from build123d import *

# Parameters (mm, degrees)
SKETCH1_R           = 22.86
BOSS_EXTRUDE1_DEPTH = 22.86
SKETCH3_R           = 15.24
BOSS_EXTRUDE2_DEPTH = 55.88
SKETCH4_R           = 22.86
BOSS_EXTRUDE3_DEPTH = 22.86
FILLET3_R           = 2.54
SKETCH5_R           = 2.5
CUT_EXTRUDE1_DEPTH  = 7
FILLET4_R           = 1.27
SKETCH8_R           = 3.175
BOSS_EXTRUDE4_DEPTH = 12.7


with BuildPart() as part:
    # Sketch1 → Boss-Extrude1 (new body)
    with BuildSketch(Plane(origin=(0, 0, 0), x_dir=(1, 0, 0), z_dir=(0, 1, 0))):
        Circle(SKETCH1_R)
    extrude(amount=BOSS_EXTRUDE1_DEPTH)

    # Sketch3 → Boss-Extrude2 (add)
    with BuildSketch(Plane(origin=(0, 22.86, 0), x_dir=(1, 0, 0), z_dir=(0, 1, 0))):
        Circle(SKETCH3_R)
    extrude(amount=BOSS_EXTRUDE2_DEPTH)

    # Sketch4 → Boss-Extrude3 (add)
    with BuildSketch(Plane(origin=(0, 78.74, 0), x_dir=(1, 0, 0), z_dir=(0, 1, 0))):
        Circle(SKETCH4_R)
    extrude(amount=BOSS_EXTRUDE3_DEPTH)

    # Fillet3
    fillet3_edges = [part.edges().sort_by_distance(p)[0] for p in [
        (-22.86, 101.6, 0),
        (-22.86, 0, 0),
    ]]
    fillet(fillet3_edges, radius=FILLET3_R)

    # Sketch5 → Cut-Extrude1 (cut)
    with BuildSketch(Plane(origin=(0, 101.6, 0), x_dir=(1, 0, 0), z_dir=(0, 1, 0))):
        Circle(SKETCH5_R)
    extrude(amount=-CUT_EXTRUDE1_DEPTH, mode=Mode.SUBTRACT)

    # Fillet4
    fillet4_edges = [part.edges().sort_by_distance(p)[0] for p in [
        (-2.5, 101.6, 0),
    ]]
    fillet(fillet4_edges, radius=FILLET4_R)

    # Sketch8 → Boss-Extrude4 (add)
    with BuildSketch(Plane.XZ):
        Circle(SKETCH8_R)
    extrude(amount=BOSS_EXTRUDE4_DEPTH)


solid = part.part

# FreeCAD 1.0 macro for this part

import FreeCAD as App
import Part
import Sketcher
from FreeCAD import Vector
Q = App.Units.Quantity


def edges_at(feature, points):
    """Names of the edges that pass closest to the given points."""
    edges = feature.Shape.Edges
    near = lambda p: min(range(len(edges)), key=lambda i: edges[i].distToShape(Part.Vertex(*p))[0])
    return sorted({f"Edge{near(p) + 1}" for p in points})

doc = App.newDocument("Part")
params = doc.addObject("Spreadsheet::Sheet", "Params")
for row, (alias, value) in enumerate([
    ("sketch1_diameter", "1.8 in"),
    ("pad1_length", "0.9 in"),
    ("sketch2_diameter", "1.2 in"),
    ("pad2_length", "2.2 in"),
    ("sketch3_diameter", "1.8 in"),
    ("pad3_length", "0.9 in"),
    ("fillet_radius", "0.1 in"),
    ("pocket1_length", "7 mm"),
    ("fillet2_radius", "0.05 in"),
    ("sketch5_diameter", "0.25 in"),
    ("pad4_length", "0.5 in"),
], start=1):
    params.set(f"A{row}", alias)
    params.set(f"B{row}", "=" + value)
    params.setAlias(f"B{row}", alias)

body = doc.addObject("PartDesign::Body", "Body")

# Sketch on XZ plane
sketch1 = doc.addObject("Sketcher::SketchObject", "Sketch")
body.addObject(sketch1)
sketch1.AttachmentSupport = (doc.XZ_Plane, [""])
sketch1.MapMode = "FlatFace"
sketch1.addGeometry(Part.Circle(Vector(0, 0, 0), Vector(0, 0, 1), 22.86), False)
sketch1.addConstraint(Sketcher.Constraint("Coincident", 0, 3, -1, 1))
sketch1.addConstraint(Sketcher.Constraint("Diameter", 0, Q("1.8 in")))
sketch1.setExpression("Constraints[1]", "Params.sketch1_diameter")
pad1 = doc.addObject("PartDesign::Pad", "Pad")
body.addObject(pad1)
pad1.Profile = sketch1
pad1.setExpression("Length", "Params.pad1_length")
pad1.Reversed = True

# Sketch on XZ plane
sketch2 = doc.addObject("Sketcher::SketchObject", "Sketch001")
body.addObject(sketch2)
sketch2.AttachmentSupport = (doc.XZ_Plane, [""])
sketch2.MapMode = "FlatFace"
sketch2.AttachmentOffset = App.Placement(Vector(0, 0, -0.9 * 25.4), App.Rotation())
sketch2.addGeometry(Part.Circle(Vector(0, 0, 0), Vector(0, 0, 1), 15.24), False)
sketch2.addConstraint(Sketcher.Constraint("Coincident", 0, 3, -1, 1))
sketch2.addConstraint(Sketcher.Constraint("Diameter", 0, Q("1.2 in")))
sketch2.setExpression("Constraints[1]", "Params.sketch2_diameter")
pad2 = doc.addObject("PartDesign::Pad", "Pad001")
body.addObject(pad2)
pad2.Profile = sketch2
pad2.setExpression("Length", "Params.pad2_length")
pad2.Reversed = True

# Sketch on XZ plane
sketch3 = doc.addObject("Sketcher::SketchObject", "Sketch002")
body.addObject(sketch3)
sketch3.AttachmentSupport = (doc.XZ_Plane, [""])
sketch3.MapMode = "FlatFace"
sketch3.AttachmentOffset = App.Placement(Vector(0, 0, -3.1 * 25.4), App.Rotation())
sketch3.addGeometry(Part.Circle(Vector(0, 0, 0), Vector(0, 0, 1), 22.86), False)
sketch3.addConstraint(Sketcher.Constraint("Coincident", 0, 3, -1, 1))
sketch3.addConstraint(Sketcher.Constraint("Diameter", 0, Q("1.8 in")))
sketch3.setExpression("Constraints[1]", "Params.sketch3_diameter")
pad3 = doc.addObject("PartDesign::Pad", "Pad002")
body.addObject(pad3)
pad3.Profile = sketch3
pad3.setExpression("Length", "Params.pad3_length")
pad3.Reversed = True
doc.recompute()

fillet = doc.addObject("PartDesign::Fillet", "Fillet")
body.addObject(fillet)
fillet.Base = (pad3, edges_at(pad3, [(-22.86, 101.6, 0), (-22.86, 0, 0)]))
fillet.setExpression("Radius", "Params.fillet_radius")

# Sketch on XZ plane
sketch4 = doc.addObject("Sketcher::SketchObject", "Sketch003")
body.addObject(sketch4)
sketch4.AttachmentSupport = (doc.XZ_Plane, [""])
sketch4.MapMode = "FlatFace"
sketch4.AttachmentOffset = App.Placement(Vector(0, 0, -4 * 25.4), App.Rotation())
sketch4.addGeometry(Part.Circle(Vector(0, 0, 0), Vector(0, 0, 1), 2.5), False)
sketch4.addConstraint(Sketcher.Constraint("Coincident", 0, 3, -1, 1))
sketch4.addConstraint(Sketcher.Constraint("Diameter", 0, 5.0))
pocket1 = doc.addObject("PartDesign::Pocket", "Pocket")
body.addObject(pocket1)
pocket1.Profile = sketch4
pocket1.setExpression("Length", "Params.pocket1_length")
pocket1.Reversed = True
doc.recompute()

fillet2 = doc.addObject("PartDesign::Fillet", "Fillet001")
body.addObject(fillet2)
fillet2.Base = (pocket1, edges_at(pocket1, [(-2.5, 101.6, 0)]))
fillet2.setExpression("Radius", "Params.fillet2_radius")

# Sketch on XZ plane
sketch5 = doc.addObject("Sketcher::SketchObject", "Sketch004")
body.addObject(sketch5)
sketch5.AttachmentSupport = (doc.XZ_Plane, [""])
sketch5.MapMode = "FlatFace"
sketch5.addGeometry(Part.Circle(Vector(0, 0, 0), Vector(0, 0, 1), 3.175), False)
sketch5.addConstraint(Sketcher.Constraint("Coincident", 0, 3, -1, 1))
sketch5.addConstraint(Sketcher.Constraint("Diameter", 0, Q("0.25 in")))
sketch5.setExpression("Constraints[1]", "Params.sketch5_diameter")
pad4 = doc.addObject("PartDesign::Pad", "Pad003")
body.addObject(pad4)
pad4.Profile = sketch5
pad4.setExpression("Length", "Params.pad4_length")

doc.recompute()
